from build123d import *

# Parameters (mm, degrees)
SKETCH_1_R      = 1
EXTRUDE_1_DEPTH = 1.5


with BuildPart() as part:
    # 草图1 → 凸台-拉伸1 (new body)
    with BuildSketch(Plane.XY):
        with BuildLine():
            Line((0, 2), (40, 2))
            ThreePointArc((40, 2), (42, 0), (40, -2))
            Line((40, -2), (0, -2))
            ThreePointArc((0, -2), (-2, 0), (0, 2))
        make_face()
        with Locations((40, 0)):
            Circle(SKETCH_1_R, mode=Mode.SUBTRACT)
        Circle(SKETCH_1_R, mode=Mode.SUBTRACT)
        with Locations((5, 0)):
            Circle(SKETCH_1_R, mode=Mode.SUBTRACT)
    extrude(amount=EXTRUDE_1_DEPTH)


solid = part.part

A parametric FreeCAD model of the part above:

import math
import FreeCAD as App
import Part
import Sketcher

V = App.Vector
Q = App.Units.Quantity

doc = App.newDocument("Part")
params = doc.addObject("Spreadsheet::Sheet", "Params")
for row, (alias, value) in enumerate([
    ("sketch1_diameter", "2 mm"),
    ("sketch1_radius", "2 mm"),
    ("sketch1_width", "40 mm"),
    ("pad1_length", "1.5 mm"),
], start=1):
    params.set(f"A{row}", alias)
    params.set(f"B{row}", "=" + value)
    params.setAlias(f"B{row}", alias)

body = doc.addObject("PartDesign::Body", "Body")

# Sketch on XY plane
sketch1 = doc.addObject("Sketcher::SketchObject", "Sketch")
body.addObject(sketch1)
sketch1.AttachmentSupport = (doc.XY_Plane, [""])
sketch1.MapMode = "FlatFace"
sketch1.addGeometry([
    Part.LineSegment(V(40, 2, 0), V(0, 2, 0)),  # 0
    Part.ArcOfCircle(Part.Circle(V(0, 0, 0), V(0, 0, 1), 2), math.radians(90), math.radians(270)),  # 1
    Part.LineSegment(V(0, -2, 0), V(40, -2, 0)),  # 2
    Part.ArcOfCircle(Part.Circle(V(40, 0, 0), V(0, 0, 1), 2), math.radians(-90), math.radians(90)),  # 3
    Part.Circle(V(40, 0, 0), V(0, 0, 1), 1),  # 4
    Part.Circle(V(5, 0, 0), V(0, 0, 1), 1),  # 5
    Part.Circle(V(0, 0, 0), V(0, 0, 1), 1),  # 6
], False)
sketch1.addConstraint([
    Sketcher.Constraint("Tangent", 0, 2, 1, 1),
    Sketcher.Constraint("Tangent", 1, 2, 2, 1),
    Sketcher.Constraint("Tangent", 2, 2, 3, 1),
    Sketcher.Constraint("Tangent", 3, 2, 0, 1),
    Sketcher.Constraint("Horizontal", 0),
    Sketcher.Constraint("Horizontal", 2),
    Sketcher.Constraint("Coincident", 1, 3, -1, 1),
    Sketcher.Constraint("Coincident", 6, 3, -1, 1),
    Sketcher.Constraint("Coincident", 4, 3, 3, 3),
    Sketcher.Constraint("Equal", 4, 5),
    Sketcher.Constraint("Equal", 5, 6),
    Sketcher.Constraint("PointOnObject", 5, 3, -1),
    Sketcher.Constraint("Diameter", 4, Q("2 mm")),
    Sketcher.Constraint("Radius", 1, Q("2 mm")),
    Sketcher.Constraint("DistanceX", 0, 2, 0, 1, Q("40 mm")),
    Sketcher.Constraint("DistanceX", -1, 1, 5, 3, Q("5 mm")),
])
sketch1.setExpression("Constraints[12]", "Params.sketch1_diameter")
sketch1.setExpression("Constraints[13]", "Params.sketch1_radius")
sketch1.setExpression("Constraints[14]", "Params.sketch1_width")
pad1 = doc.addObject("PartDesign::Pad", "Pad")
body.addObject(pad1)
pad1.Profile = sketch1
pad1.setExpression("Length", "Params.pad1_length")

doc.recompute()
